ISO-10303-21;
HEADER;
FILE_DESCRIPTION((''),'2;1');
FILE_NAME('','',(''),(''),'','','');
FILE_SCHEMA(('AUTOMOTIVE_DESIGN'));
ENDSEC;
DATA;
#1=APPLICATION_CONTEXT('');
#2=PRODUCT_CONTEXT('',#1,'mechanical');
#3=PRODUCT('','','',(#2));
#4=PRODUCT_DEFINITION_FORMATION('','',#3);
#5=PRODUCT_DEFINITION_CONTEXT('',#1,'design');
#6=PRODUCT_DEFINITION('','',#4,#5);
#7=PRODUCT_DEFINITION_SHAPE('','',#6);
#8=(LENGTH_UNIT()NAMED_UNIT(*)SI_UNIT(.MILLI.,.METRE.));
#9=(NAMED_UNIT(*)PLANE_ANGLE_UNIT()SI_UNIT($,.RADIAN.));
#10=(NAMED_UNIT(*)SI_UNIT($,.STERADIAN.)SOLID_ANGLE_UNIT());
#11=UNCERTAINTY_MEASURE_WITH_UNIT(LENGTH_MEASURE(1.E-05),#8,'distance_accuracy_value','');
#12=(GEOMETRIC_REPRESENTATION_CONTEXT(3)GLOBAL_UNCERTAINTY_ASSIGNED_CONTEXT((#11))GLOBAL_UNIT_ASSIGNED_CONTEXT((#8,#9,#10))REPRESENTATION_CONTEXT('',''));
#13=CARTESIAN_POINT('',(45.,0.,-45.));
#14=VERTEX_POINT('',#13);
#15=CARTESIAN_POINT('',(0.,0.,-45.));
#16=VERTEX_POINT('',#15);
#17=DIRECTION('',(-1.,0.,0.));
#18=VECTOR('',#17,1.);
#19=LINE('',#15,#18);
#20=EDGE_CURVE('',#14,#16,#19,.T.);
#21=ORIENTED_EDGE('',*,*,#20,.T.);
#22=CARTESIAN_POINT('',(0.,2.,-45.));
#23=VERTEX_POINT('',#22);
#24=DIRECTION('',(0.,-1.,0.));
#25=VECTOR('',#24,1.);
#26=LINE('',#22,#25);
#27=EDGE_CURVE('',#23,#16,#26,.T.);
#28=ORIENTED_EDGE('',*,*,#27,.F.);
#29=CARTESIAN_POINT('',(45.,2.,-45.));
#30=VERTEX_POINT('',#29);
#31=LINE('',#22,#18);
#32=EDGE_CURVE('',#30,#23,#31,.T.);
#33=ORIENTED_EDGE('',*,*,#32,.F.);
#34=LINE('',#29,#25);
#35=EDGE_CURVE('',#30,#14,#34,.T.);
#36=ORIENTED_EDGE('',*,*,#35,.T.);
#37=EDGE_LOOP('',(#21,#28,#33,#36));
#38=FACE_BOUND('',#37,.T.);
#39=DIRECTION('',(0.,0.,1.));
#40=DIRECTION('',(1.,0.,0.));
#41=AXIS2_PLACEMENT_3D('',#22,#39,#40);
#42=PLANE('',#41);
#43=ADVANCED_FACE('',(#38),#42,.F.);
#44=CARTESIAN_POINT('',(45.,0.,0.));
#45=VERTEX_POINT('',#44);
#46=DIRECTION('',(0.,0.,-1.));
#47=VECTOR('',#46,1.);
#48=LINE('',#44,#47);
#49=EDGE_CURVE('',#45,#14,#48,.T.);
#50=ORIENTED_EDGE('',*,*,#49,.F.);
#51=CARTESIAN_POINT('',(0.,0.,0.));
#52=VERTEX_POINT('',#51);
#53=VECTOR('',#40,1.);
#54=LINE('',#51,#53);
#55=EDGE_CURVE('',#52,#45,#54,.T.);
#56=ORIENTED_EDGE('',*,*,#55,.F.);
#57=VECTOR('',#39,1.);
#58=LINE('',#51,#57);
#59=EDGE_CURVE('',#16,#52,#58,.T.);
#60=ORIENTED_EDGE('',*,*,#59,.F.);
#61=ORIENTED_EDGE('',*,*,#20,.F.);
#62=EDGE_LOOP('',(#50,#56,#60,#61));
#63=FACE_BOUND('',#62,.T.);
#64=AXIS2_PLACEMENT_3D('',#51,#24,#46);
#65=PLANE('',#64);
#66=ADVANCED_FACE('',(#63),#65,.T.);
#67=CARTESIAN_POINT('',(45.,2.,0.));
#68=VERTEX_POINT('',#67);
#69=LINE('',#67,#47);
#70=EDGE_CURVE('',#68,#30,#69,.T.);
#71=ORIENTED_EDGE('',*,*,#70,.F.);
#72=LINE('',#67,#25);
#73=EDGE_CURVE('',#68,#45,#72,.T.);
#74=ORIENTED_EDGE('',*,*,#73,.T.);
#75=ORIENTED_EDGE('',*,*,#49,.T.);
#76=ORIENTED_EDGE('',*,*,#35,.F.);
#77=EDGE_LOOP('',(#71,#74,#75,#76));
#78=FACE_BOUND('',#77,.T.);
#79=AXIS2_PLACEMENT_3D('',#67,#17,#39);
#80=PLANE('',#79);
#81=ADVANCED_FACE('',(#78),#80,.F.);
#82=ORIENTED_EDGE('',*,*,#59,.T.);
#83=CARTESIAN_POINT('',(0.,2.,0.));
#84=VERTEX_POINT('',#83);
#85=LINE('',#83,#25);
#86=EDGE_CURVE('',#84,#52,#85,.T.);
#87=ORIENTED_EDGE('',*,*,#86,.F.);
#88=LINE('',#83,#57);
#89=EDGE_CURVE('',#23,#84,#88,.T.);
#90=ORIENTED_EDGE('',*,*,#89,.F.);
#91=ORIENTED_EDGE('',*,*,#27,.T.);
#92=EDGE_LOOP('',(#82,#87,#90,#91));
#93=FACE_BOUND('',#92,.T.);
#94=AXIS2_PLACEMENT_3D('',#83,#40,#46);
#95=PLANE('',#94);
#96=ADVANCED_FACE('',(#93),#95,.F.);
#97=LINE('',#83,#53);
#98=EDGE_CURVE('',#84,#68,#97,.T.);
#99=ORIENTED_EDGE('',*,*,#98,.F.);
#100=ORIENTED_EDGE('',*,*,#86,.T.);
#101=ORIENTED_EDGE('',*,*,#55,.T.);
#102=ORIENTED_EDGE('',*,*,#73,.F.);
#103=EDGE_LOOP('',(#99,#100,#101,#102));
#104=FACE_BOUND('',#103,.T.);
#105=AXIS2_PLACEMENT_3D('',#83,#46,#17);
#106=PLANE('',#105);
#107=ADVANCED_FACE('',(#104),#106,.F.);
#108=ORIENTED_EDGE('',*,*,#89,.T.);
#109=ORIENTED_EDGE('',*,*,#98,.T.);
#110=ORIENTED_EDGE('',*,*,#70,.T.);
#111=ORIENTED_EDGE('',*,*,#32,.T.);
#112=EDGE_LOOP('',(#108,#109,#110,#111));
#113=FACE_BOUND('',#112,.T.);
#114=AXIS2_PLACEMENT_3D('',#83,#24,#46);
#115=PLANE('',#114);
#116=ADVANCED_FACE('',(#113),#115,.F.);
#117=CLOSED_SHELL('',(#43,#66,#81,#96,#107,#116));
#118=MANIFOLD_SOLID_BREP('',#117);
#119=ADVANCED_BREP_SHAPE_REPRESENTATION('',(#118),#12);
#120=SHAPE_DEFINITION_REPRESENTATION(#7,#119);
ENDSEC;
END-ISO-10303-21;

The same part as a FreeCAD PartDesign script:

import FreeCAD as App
import Part
import Sketcher

doc = App.newDocument("Part")
params = doc.addObject("Spreadsheet::Sheet", "Params")
for row, (alias, value) in enumerate([
    ("sketch1_width", "45 mm"),
    ("pad1_length", "2 mm"),
], start=1):
    params.set(f"A{row}", alias)
    params.set(f"B{row}", "=" + value)
    params.setAlias(f"B{row}", alias)

body = doc.addObject("PartDesign::Body", "Body")

# Sketch on XZ plane
sketch1 = body.newObject("Sketcher::SketchObject", "Sketch")
sketch1.AttachmentSupport = (doc.getObject("XZ_Plane"), [""])
sketch1.MapMode = "FlatFace"
sketch1.addGeometry([
    Part.LineSegment(App.Vector(0, -45, 0), App.Vector(0, 0, 0)),
    Part.LineSegment(App.Vector(0, 0, 0), App.Vector(45, 0, 0)),
    Part.LineSegment(App.Vector(45, 0, 0), App.Vector(45, -45, 0)),
    Part.LineSegment(App.Vector(45, -45, 0), App.Vector(0, -45, 0)),
], False)
sketch1.addConstraint([
    Sketcher.Constraint("Coincident", 0, 2, 1, 1),
    Sketcher.Constraint("Coincident", 1, 2, 2, 1),
    Sketcher.Constraint("Coincident", 2, 2, 3, 1),
    Sketcher.Constraint("Coincident", 3, 2, 0, 1),
    Sketcher.Constraint("Vertical", 0),
    Sketcher.Constraint("Horizontal", 1),
    Sketcher.Constraint("Vertical", 2),
    Sketcher.Constraint("Horizontal", 3),
    Sketcher.Constraint("Coincident", 0, 2, -1, 1),
    Sketcher.Constraint("Equal", 3, 0),
    Sketcher.Constraint("DistanceX", 1, 1, 1, 2, 45.0),
])
sketch1.setExpression("Constraints[10]", "Params.sketch1_width")
pad1 = body.newObject("PartDesign::Pad", "Pad")
pad1.Profile = sketch1
pad1.setExpression("Length", "Params.pad1_length")
pad1.Reversed = True

doc.recompute()
